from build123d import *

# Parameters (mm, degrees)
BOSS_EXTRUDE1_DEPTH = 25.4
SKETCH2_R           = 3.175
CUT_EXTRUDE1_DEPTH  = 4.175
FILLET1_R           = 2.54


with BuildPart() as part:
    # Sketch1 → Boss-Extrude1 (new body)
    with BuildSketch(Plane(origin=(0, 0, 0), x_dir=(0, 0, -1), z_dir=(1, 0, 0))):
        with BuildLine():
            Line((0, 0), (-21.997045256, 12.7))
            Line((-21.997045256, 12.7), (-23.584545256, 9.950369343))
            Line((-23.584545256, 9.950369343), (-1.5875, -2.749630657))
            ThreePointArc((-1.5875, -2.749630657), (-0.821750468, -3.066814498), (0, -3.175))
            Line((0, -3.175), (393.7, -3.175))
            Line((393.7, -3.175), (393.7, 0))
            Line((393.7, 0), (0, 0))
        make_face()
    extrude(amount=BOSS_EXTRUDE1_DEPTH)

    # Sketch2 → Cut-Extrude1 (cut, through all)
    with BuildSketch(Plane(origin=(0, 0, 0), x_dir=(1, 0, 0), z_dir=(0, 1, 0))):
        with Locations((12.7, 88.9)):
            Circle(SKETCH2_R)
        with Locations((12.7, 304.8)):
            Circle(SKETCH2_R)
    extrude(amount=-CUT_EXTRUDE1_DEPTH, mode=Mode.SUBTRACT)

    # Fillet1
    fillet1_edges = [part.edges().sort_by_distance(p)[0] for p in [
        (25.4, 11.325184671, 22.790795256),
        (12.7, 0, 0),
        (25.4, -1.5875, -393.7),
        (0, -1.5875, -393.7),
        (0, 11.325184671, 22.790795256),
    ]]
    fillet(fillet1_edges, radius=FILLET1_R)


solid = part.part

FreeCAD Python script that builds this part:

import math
import FreeCAD as App
import Part
import Sketcher

V = App.Vector
Q = App.Units.Quantity


def edges_at(feature, points):
    """Names of the edges that pass closest to the given points."""
    edges = feature.Shape.Edges
    near = lambda p: min(range(len(edges)), key=lambda i: edges[i].distToShape(Part.Vertex(*p))[0])
    return sorted({f"Edge{near(p) + 1}" for p in points})

doc = App.newDocument("Part")
body = doc.addObject("PartDesign::Body", "Body")

# Sketch on YZ plane
sketch1 = doc.addObject("Sketcher::SketchObject", "Sketch")
body.addObject(sketch1)
sketch1.AttachmentSupport = (doc.YZ_Plane, [""])
sketch1.MapMode = "FlatFace"
sketch1.addGeometry([
    Part.LineSegment(V(0, 0, 0), V(12.7, 22, 0)),  # 0
    Part.LineSegment(V(12.7, 22, 0), V(10, 23.6, 0)),  # 1
    Part.LineSegment(V(10, 23.6, 0), V(-2.7, 1.6, 0)),  # 2
    Part.ArcOfCircle(Part.Circle(V(0, 0, 0), V(0, 0, 1), 3.2), math.radians(150), math.radians(180)),  # 3
    Part.LineSegment(V(-3.2, 0, 0), V(-3.2, -393.7, 0)),  # 4
    Part.LineSegment(V(-3.2, -393.7, 0), V(0, -393.7, 0)),  # 5
    Part.LineSegment(V(0, -393.7, 0), V(0, 0, 0)),  # 6
], False)
sketch1.addConstraint([
    Sketcher.Constraint("Coincident", 0, 2, 1, 1),
    Sketcher.Constraint("Coincident", 1, 2, 2, 1),
    Sketcher.Constraint("Tangent", 2, 2, 3, 1),
    Sketcher.Constraint("Tangent", 3, 2, 4, 1),
    Sketcher.Constraint("Coincident", 4, 2, 5, 1),
    Sketcher.Constraint("Coincident", 5, 2, 6, 1),
    Sketcher.Constraint("Coincident", 6, 2, 0, 1),
    Sketcher.Constraint("Vertical", 4),
    Sketcher.Constraint("Horizontal", 5),
    Sketcher.Constraint("Vertical", 6),
    Sketcher.Constraint("Coincident", 3, 3, -1, 1),
    Sketcher.Constraint("Coincident", 6, 2, -1, 1),
    Sketcher.Constraint("Perpendicular", 0, 1),
    Sketcher.Constraint("Perpendicular", 1, 2),
    Sketcher.Constraint("Distance", 0, Q("1 in")),
    Sketcher.Constraint("DistanceY", 4, 2, 4, 1, Q("15.5 in")),
    Sketcher.Constraint("Angle", 0, Q("60 deg")),
    Sketcher.Constraint("Radius", 3, Q("0.125 in")),
])
pad1 = doc.addObject("PartDesign::Pad", "Pad")
body.addObject(pad1)
pad1.Profile = sketch1
pad1.Length = Q("1 in")

# Sketch on XZ plane
sketch2 = doc.addObject("Sketcher::SketchObject", "Sketch001")
body.addObject(sketch2)
sketch2.AttachmentSupport = (doc.XZ_Plane, [""])
sketch2.MapMode = "FlatFace"
sketch2.addGeometry([
    Part.Circle(V(12.7, -88.9, 0), V(0, 0, 1), 3.2),
    Part.Circle(V(12.7, -304.8, 0), V(0, 0, 1), 3.2),
], False)
sketch2.addConstraint([
    Sketcher.Constraint("Equal", 0, 1),
    Sketcher.Constraint("Vertical", 0, 3, 1, 3),
    Sketcher.Constraint("Diameter", 0, Q("0.25 in")),
    Sketcher.Constraint("DistanceY", 1, 3, -1, 1, Q("12 in")),
    Sketcher.Constraint("DistanceX", -1, 1, 0, 3, Q("0.5 in")),
    Sketcher.Constraint("DistanceY", 0, 3, -1, 1, Q("3.5 in")),
])
pocket1 = doc.addObject("PartDesign::Pocket", "Pocket")
body.addObject(pocket1)
pocket1.Profile = sketch2
pocket1.Type = "ThroughAll"
pocket1.Reversed = True
doc.recompute()

fillet = doc.addObject("PartDesign::Fillet", "Fillet")
body.addObject(fillet)
fillet.Base = (pocket1, edges_at(pocket1, [
    (25.4, 11.325, 22.791),
    (12.7, 0, 0),
    (25.4, -1.587, -393.7),
    (0, -1.587, -393.7),
    (0, 11.325, 22.791),
]))
fillet.Radius = Q("0.1 in")

doc.recompute()
